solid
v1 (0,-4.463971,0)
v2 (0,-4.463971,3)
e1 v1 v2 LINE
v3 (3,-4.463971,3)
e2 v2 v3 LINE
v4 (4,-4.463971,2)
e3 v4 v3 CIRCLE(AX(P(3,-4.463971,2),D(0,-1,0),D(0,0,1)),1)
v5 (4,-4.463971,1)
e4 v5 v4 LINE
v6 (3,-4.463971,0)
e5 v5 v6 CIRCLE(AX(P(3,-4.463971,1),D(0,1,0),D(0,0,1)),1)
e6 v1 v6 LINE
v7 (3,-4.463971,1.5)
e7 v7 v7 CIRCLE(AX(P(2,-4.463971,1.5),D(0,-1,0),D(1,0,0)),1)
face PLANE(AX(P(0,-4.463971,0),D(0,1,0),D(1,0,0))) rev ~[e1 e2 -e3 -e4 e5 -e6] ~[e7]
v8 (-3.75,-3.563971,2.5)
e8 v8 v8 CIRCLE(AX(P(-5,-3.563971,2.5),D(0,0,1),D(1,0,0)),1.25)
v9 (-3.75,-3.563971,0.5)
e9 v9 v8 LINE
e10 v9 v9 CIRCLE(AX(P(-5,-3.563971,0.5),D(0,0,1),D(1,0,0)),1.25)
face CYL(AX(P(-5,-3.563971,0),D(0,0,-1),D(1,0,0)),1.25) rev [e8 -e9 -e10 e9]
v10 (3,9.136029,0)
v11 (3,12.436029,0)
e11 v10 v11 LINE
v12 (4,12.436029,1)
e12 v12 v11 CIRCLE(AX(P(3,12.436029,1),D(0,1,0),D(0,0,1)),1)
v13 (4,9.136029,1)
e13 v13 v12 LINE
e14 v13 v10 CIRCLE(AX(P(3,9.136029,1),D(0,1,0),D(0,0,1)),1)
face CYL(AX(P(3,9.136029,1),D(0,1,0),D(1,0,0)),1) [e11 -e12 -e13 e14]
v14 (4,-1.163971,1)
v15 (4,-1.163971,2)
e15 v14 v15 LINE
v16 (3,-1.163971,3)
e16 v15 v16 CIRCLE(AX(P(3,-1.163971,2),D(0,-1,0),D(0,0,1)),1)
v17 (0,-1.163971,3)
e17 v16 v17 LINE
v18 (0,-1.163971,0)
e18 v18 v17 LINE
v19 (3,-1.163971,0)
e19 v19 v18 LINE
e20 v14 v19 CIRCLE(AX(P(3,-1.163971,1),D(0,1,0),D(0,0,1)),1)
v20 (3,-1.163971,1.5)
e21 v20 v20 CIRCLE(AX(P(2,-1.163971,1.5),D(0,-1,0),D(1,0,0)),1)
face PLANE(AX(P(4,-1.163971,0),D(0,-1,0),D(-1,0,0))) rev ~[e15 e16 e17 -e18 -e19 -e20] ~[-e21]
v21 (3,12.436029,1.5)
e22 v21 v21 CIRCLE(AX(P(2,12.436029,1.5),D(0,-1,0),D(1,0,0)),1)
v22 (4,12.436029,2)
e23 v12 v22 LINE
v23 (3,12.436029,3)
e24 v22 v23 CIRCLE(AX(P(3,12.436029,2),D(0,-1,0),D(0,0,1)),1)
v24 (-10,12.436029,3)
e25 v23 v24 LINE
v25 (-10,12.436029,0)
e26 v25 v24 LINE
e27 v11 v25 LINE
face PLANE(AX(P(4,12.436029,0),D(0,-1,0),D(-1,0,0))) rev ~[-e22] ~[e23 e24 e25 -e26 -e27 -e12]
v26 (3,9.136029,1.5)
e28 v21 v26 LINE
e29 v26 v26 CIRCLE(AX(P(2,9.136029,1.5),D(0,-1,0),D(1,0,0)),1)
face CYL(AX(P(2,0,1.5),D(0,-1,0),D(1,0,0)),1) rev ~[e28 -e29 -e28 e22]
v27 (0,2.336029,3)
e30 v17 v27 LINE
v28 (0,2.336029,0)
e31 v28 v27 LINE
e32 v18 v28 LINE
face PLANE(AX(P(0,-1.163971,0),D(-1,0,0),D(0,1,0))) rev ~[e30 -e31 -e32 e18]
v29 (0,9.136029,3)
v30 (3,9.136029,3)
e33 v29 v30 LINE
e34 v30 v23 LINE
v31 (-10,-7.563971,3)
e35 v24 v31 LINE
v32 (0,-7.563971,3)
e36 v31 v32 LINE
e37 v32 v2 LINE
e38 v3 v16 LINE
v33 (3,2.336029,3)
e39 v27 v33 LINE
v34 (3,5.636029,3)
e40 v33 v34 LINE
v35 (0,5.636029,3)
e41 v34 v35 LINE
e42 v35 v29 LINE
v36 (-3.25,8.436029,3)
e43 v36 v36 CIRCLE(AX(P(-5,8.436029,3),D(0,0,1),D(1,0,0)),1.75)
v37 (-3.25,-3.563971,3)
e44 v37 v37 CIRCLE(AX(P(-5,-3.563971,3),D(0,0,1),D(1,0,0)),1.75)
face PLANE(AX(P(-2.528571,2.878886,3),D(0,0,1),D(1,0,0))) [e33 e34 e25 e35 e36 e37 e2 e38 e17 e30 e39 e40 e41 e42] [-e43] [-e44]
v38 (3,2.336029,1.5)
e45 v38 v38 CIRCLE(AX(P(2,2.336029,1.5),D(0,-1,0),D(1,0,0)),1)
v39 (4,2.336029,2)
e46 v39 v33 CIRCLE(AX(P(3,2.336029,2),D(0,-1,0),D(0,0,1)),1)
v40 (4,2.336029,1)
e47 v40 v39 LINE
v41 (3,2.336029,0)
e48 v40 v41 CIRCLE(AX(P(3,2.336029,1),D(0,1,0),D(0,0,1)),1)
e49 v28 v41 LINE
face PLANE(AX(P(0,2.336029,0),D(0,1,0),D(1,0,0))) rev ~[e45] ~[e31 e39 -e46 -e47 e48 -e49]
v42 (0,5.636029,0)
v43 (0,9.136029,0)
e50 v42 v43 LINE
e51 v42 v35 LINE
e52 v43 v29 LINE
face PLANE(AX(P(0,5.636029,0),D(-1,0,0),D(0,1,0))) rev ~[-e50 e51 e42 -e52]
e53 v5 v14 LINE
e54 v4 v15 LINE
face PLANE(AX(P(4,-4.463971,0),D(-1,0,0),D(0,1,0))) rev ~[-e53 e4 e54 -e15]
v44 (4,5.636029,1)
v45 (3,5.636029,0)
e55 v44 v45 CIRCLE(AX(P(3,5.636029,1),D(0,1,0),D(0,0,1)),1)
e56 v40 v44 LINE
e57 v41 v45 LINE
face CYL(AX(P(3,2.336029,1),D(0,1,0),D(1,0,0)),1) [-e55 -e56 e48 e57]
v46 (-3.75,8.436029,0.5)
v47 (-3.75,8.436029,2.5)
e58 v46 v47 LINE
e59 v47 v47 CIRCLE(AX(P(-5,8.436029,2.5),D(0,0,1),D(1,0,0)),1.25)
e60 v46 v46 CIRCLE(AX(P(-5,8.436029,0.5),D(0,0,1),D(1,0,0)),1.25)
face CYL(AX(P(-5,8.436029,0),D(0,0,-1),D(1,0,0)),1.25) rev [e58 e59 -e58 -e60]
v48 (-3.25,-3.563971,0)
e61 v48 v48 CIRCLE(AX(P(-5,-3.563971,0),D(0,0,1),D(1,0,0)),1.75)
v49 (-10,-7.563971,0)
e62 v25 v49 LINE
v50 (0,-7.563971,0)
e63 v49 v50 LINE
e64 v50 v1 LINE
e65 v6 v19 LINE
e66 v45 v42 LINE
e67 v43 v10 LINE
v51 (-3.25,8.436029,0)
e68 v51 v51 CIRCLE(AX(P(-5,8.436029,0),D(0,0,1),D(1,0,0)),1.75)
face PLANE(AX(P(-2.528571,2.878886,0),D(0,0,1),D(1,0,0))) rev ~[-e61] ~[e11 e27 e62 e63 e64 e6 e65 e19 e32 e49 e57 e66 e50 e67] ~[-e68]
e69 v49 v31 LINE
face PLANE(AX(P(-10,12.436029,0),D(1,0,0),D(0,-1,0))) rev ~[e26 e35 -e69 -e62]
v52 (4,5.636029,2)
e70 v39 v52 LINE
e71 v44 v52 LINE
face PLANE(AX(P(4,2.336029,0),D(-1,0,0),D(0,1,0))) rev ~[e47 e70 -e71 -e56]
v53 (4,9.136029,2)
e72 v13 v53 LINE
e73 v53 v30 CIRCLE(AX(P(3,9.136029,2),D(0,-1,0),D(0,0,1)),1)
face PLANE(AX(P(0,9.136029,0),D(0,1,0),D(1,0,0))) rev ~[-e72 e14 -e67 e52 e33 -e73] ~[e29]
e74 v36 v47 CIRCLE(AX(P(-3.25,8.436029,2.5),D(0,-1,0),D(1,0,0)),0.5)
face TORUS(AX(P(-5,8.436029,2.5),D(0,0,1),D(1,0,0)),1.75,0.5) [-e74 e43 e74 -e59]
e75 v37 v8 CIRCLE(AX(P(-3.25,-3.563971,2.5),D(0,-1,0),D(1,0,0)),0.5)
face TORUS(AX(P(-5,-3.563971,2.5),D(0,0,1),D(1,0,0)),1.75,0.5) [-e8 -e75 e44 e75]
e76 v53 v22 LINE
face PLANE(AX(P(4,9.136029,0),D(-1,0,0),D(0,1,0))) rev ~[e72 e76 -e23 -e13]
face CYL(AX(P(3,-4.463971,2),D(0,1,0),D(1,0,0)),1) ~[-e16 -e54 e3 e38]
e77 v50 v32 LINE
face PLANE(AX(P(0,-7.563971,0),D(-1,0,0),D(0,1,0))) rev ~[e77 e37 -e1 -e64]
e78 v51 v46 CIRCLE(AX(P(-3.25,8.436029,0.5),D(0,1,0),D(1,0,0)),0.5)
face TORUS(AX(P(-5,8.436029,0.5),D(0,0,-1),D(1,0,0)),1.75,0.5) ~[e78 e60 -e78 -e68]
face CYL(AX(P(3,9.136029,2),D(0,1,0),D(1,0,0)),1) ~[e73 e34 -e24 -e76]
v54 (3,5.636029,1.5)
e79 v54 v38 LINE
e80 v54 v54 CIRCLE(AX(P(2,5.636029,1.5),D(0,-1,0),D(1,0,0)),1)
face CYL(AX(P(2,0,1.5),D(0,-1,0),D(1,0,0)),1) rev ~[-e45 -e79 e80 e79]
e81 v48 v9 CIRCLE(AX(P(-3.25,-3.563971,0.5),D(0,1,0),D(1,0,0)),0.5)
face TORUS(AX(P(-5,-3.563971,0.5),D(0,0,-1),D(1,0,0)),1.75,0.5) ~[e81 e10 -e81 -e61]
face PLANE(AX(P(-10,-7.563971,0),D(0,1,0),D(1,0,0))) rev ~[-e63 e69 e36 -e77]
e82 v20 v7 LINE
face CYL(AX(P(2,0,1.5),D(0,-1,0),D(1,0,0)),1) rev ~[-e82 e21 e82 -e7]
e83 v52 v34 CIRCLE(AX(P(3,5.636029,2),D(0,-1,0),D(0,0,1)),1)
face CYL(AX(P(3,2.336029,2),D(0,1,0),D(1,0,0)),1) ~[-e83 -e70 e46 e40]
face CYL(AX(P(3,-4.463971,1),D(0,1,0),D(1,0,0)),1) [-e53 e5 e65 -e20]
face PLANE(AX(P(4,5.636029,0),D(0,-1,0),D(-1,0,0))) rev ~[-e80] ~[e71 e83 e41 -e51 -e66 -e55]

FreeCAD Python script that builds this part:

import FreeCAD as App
import Part
import Sketcher
Q = App.Units.Quantity


def edges_at(feature, points):
    """Names of the edges that pass closest to the given points."""
    edges = feature.Shape.Edges
    near = lambda p: min(range(len(edges)), key=lambda i: edges[i].distToShape(Part.Vertex(*p))[0])
    return sorted({f"Edge{near(p) + 1}" for p in points})

doc = App.newDocument("Part")
body = doc.addObject("PartDesign::Body", "Body")

# Sketch on XY plane
sketch1 = doc.addObject("Sketcher::SketchObject", "Sketch")
body.addObject(sketch1)
sketch1.AttachmentSupport = (doc.XY_Plane, [""])
sketch1.MapMode = "FlatFace"
sketch1.addGeometry([
    Part.LineSegment(App.Vector(-10, 12.4, 0), App.Vector(-10, -7.6, 0)),  # 0
    Part.LineSegment(App.Vector(-10, -7.6, 0), App.Vector(0, -7.6, 0)),  # 1
    Part.LineSegment(App.Vector(0, -7.6, 0), App.Vector(0, -4.5, 0)),  # 2
    Part.LineSegment(App.Vector(0, -4.5, 0), App.Vector(4, -4.5, 0)),  # 3
    Part.LineSegment(App.Vector(4, -4.5, 0), App.Vector(4, -1.2, 0)),  # 4
    Part.LineSegment(App.Vector(4, -1.2, 0), App.Vector(0, -1.2, 0)),  # 5
    Part.LineSegment(App.Vector(0, -1.2, 0), App.Vector(0, 2.3, 0)),  # 6
    Part.LineSegment(App.Vector(0, 2.3, 0), App.Vector(4, 2.3, 0)),  # 7
    Part.LineSegment(App.Vector(4, 2.3, 0), App.Vector(4, 5.6, 0)),  # 8
    Part.LineSegment(App.Vector(4, 5.6, 0), App.Vector(0, 5.6, 0)),  # 9
    Part.LineSegment(App.Vector(0, 5.6, 0), App.Vector(0, 9.1, 0)),  # 10
    Part.LineSegment(App.Vector(0, 9.1, 0), App.Vector(4, 9.1, 0)),  # 11
    Part.LineSegment(App.Vector(4, 9.1, 0), App.Vector(4, 12.4, 0)),  # 12
    Part.LineSegment(App.Vector(4, 12.4, 0), App.Vector(-10, 12.4, 0)),  # 13
    Part.Circle(App.Vector(-5, -3.6, 0), App.Vector(0, 0, 1), 1.2),  # 14
    Part.Circle(App.Vector(-5, 8.4, 0), App.Vector(0, 0, 1), 1.2),  # 15
], False)
sketch1.addConstraint([
    Sketcher.Constraint("Coincident", 0, 2, 1, 1),
    Sketcher.Constraint("Coincident", 1, 2, 2, 1),
    Sketcher.Constraint("Coincident", 2, 2, 3, 1),
    Sketcher.Constraint("Coincident", 3, 2, 4, 1),
    Sketcher.Constraint("Coincident", 4, 2, 5, 1),
    Sketcher.Constraint("Coincident", 5, 2, 6, 1),
    Sketcher.Constraint("Coincident", 6, 2, 7, 1),
    Sketcher.Constraint("Coincident", 7, 2, 8, 1),
    Sketcher.Constraint("Coincident", 8, 2, 9, 1),
    Sketcher.Constraint("Coincident", 9, 2, 10, 1),
    Sketcher.Constraint("Coincident", 10, 2, 11, 1),
    Sketcher.Constraint("Coincident", 11, 2, 12, 1),
    Sketcher.Constraint("Coincident", 12, 2, 13, 1),
    Sketcher.Constraint("Coincident", 13, 2, 0, 1),
    Sketcher.Constraint("Vertical", 0),
    Sketcher.Constraint("Horizontal", 1),
    Sketcher.Constraint("Vertical", 2),
    Sketcher.Constraint("Horizontal", 3),
    Sketcher.Constraint("Vertical", 4),
    Sketcher.Constraint("Horizontal", 5),
    Sketcher.Constraint("Vertical", 6),
    Sketcher.Constraint("Horizontal", 7),
    Sketcher.Constraint("Vertical", 8),
    Sketcher.Constraint("Horizontal", 9),
    Sketcher.Constraint("Vertical", 10),
    Sketcher.Constraint("Horizontal", 11),
    Sketcher.Constraint("Vertical", 12),
    Sketcher.Constraint("Horizontal", 13),
    Sketcher.Constraint("Equal", 14, 15),
    Sketcher.Constraint("PointOnObject", 1, 2, -2),
    Sketcher.Constraint("PointOnObject", 5, 2, -2),
    Sketcher.Constraint("PointOnObject", 9, 2, -2),
    Sketcher.Constraint("Vertical", 14, 3, 15, 3),
    Sketcher.Constraint("Vertical", 4, 2, 7, 2),
    Sketcher.Constraint("Vertical", 8, 2, 11, 2),
    Sketcher.Constraint("Equal", 4, 8),
    Sketcher.Constraint("Equal", 6, 10),
    Sketcher.Constraint("Equal", 8, 12),
    Sketcher.Constraint("Diameter", 14, Q("2.5 mm")),
    Sketcher.Constraint("DistanceX", 1, 1, 1, 2, Q("10 mm")),
    Sketcher.Constraint("DistanceX", 3, 1, 3, 2, Q("4 mm")),
    Sketcher.Constraint("DistanceY", 0, 2, 0, 1, Q("20 mm")),
    Sketcher.Constraint("DistanceY", 2, 1, 2, 2, Q("3.1 mm")),
    Sketcher.Constraint("DistanceY", 4, 1, 4, 2, Q("3.3 mm")),
    Sketcher.Constraint("DistanceX", 14, 3, -1, 1, Q("5 mm")),
    Sketcher.Constraint("DistanceY", 14, 3, 15, 3, Q("12 mm")),
    Sketcher.Constraint("DistanceY", 0, 2, 14, 3, Q("4 mm")),
    Sketcher.Constraint("DistanceY", 14, 3, -1, 1, Q("3.563971 mm")),
])
pad1 = doc.addObject("PartDesign::Pad", "Pad")
body.addObject(pad1)
pad1.Profile = sketch1
pad1.Length = 1.355102
doc.recompute()

fillet = doc.addObject("PartDesign::Fillet", "Fillet")
body.addObject(fillet)
fillet.Base = (pad1, edges_at(pad1, [
    (4, -2.814, 1.355),
    (4, 3.986, 1.355),
    (4, 10.786, 1.355),
    (4, -2.814, 0),
    (4, 3.986, 0),
    (4, 10.786, 0),
]))
fillet.Radius = 0.4
body2 = doc.addObject("PartDesign::Body", "Body001")

# Sketch on XZ plane
sketch2 = doc.addObject("Sketcher::SketchObject", "Sketch001")
body2.addObject(sketch2)
sketch2.AttachmentSupport = (doc.getObject("XZ_Plane001"), [""])
sketch2.MapMode = "FlatFace"
sketch2.addGeometry(Part.Circle(App.Vector(2, 1.5, 0), App.Vector(0, 0, 1), 1), False)
sketch2.addConstraint([
    Sketcher.Constraint("Diameter", 0, Q("2 mm")),
    Sketcher.Constraint("DistanceX", -1, 1, 0, 3, Q("2 mm")),
    Sketcher.Constraint("DistanceY", -1, 1, 0, 3, Q("1.5 mm")),
])
pad2 = doc.addObject("PartDesign::Pad", "Pad001")
body2.addObject(pad2)
pad2.Profile = sketch2
pad2.Length = 37.663362
pad2.Midplane = True
body3 = doc.addObject("PartDesign::Body", "Body002")

# Sketch on XY plane
sketch3 = doc.addObject("Sketcher::SketchObject", "Sketch002")
body3.addObject(sketch3)
sketch3.AttachmentSupport = (doc.getObject("XY_Plane002"), [""])
sketch3.MapMode = "FlatFace"
sketch3.addGeometry([
    Part.LineSegment(App.Vector(-10, 12.4, 0), App.Vector(-10, -7.6, 0)),  # 0
    Part.LineSegment(App.Vector(-10, -7.6, 0), App.Vector(0, -7.6, 0)),  # 1
    Part.LineSegment(App.Vector(0, -7.6, 0), App.Vector(0, -4.5, 0)),  # 2
    Part.LineSegment(App.Vector(0, -4.5, 0), App.Vector(4, -4.5, 0)),  # 3
    Part.LineSegment(App.Vector(4, -4.5, 0), App.Vector(4, -1.2, 0)),  # 4
    Part.LineSegment(App.Vector(4, -1.2, 0), App.Vector(0, -1.2, 0)),  # 5
    Part.LineSegment(App.Vector(0, -1.2, 0), App.Vector(0, 2.3, 0)),  # 6
    Part.LineSegment(App.Vector(0, 2.3, 0), App.Vector(4, 2.3, 0)),  # 7
    Part.LineSegment(App.Vector(4, 2.3, 0), App.Vector(4, 5.6, 0)),  # 8
    Part.LineSegment(App.Vector(4, 5.6, 0), App.Vector(0, 5.6, 0)),  # 9
    Part.LineSegment(App.Vector(0, 5.6, 0), App.Vector(0, 9.1, 0)),  # 10
    Part.LineSegment(App.Vector(0, 9.1, 0), App.Vector(4, 9.1, 0)),  # 11
    Part.LineSegment(App.Vector(4, 9.1, 0), App.Vector(4, 12.4, 0)),  # 12
    Part.LineSegment(App.Vector(4, 12.4, 0), App.Vector(-10, 12.4, 0)),  # 13
    Part.Circle(App.Vector(-5, -3.6, 0), App.Vector(0, 0, 1), 1.2),  # 14
    Part.Circle(App.Vector(-5, 8.4, 0), App.Vector(0, 0, 1), 1.2),  # 15
], False)
sketch3.addConstraint([
    Sketcher.Constraint("Coincident", 0, 2, 1, 1),
    Sketcher.Constraint("Coincident", 1, 2, 2, 1),
    Sketcher.Constraint("Coincident", 2, 2, 3, 1),
    Sketcher.Constraint("Coincident", 3, 2, 4, 1),
    Sketcher.Constraint("Coincident", 4, 2, 5, 1),
    Sketcher.Constraint("Coincident", 5, 2, 6, 1),
    Sketcher.Constraint("Coincident", 6, 2, 7, 1),
    Sketcher.Constraint("Coincident", 7, 2, 8, 1),
    Sketcher.Constraint("Coincident", 8, 2, 9, 1),
    Sketcher.Constraint("Coincident", 9, 2, 10, 1),
    Sketcher.Constraint("Coincident", 10, 2, 11, 1),
    Sketcher.Constraint("Coincident", 11, 2, 12, 1),
    Sketcher.Constraint("Coincident", 12, 2, 13, 1),
    Sketcher.Constraint("Coincident", 13, 2, 0, 1),
    Sketcher.Constraint("Vertical", 0),
    Sketcher.Constraint("Horizontal", 1),
    Sketcher.Constraint("Vertical", 2),
    Sketcher.Constraint("Horizontal", 3),
    Sketcher.Constraint("Vertical", 4),
    Sketcher.Constraint("Horizontal", 5),
    Sketcher.Constraint("Vertical", 6),
    Sketcher.Constraint("Horizontal", 7),
    Sketcher.Constraint("Vertical", 8),
    Sketcher.Constraint("Horizontal", 9),
    Sketcher.Constraint("Vertical", 10),
    Sketcher.Constraint("Horizontal", 11),
    Sketcher.Constraint("Vertical", 12),
    Sketcher.Constraint("Horizontal", 13),
    Sketcher.Constraint("Equal", 14, 15),
    Sketcher.Constraint("PointOnObject", 1, 2, -2),
    Sketcher.Constraint("PointOnObject", 5, 2, -2),
    Sketcher.Constraint("PointOnObject", 9, 2, -2),
    Sketcher.Constraint("Vertical", 14, 3, 15, 3),
    Sketcher.Constraint("Vertical", 4, 2, 7, 2),
    Sketcher.Constraint("Vertical", 8, 2, 11, 2),
    Sketcher.Constraint("Equal", 4, 8),
    Sketcher.Constraint("Equal", 6, 10),
    Sketcher.Constraint("Equal", 8, 12),
    Sketcher.Constraint("Diameter", 14, Q("2.5 mm")),
    Sketcher.Constraint("DistanceX", 1, 1, 1, 2, Q("10 mm")),
    Sketcher.Constraint("DistanceX", 3, 1, 3, 2, Q("4 mm")),
    Sketcher.Constraint("DistanceY", 0, 2, 0, 1, Q("20 mm")),
    Sketcher.Constraint("DistanceY", 2, 1, 2, 2, Q("3.1 mm")),
    Sketcher.Constraint("DistanceY", 4, 1, 4, 2, Q("3.3 mm")),
    Sketcher.Constraint("DistanceX", 14, 3, -1, 1, Q("5 mm")),
    Sketcher.Constraint("DistanceY", 14, 3, 15, 3, Q("12 mm")),
    Sketcher.Constraint("DistanceY", 0, 2, 14, 3, Q("4 mm")),
    Sketcher.Constraint("DistanceY", 14, 3, -1, 1, Q("3.563971 mm")),
])
pad3 = doc.addObject("PartDesign::Pad", "Pad002")
body3.addObject(pad3)
pad3.Profile = sketch3
pad3.Length = 3
doc.recompute()

fillet2 = doc.addObject("PartDesign::Fillet", "Fillet001")
body3.addObject(fillet2)
fillet2.Base = (pad3, edges_at(pad3, [
    (4, -2.814, 3),
    (4, 3.986, 3),
    (4, 10.786, 3),
    (4, 10.786, 0),
    (4, 3.986, 0),
    (4, -2.814, 0),
]))
fillet2.Radius = 1
doc.recompute()

boolean = doc.addObject("PartDesign::Boolean", "Boolean")
body3.addObject(boolean)
boolean.Type = "Cut"
boolean.addObjects([body2])
doc.recompute()

fillet3 = doc.addObject("PartDesign::Fillet", "Fillet002")
body3.addObject(fillet3)
fillet3.Base = (boolean, edges_at(boolean, [
    (-6.25, -3.564, 3),
    (-6.25, 8.436, 3),
    (-6.25, -3.564, 0),
    (-6.25, 8.436, 0),
]))
fillet3.Radius = 0.5
body.Visibility = False

doc.recompute()
